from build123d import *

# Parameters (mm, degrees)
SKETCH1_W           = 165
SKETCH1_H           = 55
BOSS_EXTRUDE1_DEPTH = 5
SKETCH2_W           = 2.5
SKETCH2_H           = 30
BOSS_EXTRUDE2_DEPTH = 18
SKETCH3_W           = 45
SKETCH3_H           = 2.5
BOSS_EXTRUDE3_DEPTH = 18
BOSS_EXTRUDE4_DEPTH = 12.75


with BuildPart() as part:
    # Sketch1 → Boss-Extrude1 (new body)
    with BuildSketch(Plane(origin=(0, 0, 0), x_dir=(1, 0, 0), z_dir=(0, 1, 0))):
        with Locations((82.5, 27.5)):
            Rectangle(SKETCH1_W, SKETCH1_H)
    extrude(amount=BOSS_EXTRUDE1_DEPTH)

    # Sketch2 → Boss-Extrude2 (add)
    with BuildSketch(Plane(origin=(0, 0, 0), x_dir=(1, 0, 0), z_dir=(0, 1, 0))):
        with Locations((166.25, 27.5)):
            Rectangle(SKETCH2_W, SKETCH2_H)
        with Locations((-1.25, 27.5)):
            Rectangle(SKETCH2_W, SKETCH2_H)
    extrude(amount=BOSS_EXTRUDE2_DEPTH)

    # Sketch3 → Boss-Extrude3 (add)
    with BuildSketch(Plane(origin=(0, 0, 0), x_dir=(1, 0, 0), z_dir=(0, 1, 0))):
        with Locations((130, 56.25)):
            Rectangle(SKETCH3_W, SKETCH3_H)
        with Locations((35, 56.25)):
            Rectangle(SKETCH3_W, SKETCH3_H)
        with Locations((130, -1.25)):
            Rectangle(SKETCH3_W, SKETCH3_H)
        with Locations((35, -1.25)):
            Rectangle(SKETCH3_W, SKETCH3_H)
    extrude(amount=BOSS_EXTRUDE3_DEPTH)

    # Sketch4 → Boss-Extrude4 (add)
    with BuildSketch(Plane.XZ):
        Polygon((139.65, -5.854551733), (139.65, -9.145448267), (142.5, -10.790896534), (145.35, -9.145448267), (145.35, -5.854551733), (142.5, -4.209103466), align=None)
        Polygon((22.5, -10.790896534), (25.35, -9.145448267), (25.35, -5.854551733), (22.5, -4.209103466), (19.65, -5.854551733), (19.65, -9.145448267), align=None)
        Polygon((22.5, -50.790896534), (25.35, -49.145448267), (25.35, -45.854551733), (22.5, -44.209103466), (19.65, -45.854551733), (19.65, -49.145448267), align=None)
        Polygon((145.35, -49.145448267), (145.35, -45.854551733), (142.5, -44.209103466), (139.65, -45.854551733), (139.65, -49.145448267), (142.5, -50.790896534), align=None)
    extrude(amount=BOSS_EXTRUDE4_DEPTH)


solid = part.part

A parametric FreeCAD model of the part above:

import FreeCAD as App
import Part
import Sketcher
from FreeCAD import Vector
Q = App.Units.Quantity

doc = App.newDocument("Part")
body = doc.addObject("PartDesign::Body", "Body")

# Sketch on XZ plane
sketch1 = body.newObject("Sketcher::SketchObject", "Sketch")
sketch1.AttachmentSupport = (doc.getObject("XZ_Plane"), [""])
sketch1.MapMode = "FlatFace"
sketch1.addGeometry(Part.LineSegment(Vector(0, -55, 0), Vector(0, 0, 0)), False)
sketch1.addGeometry(Part.LineSegment(Vector(0, 0, 0), Vector(165, 0, 0)), False)
sketch1.addGeometry(Part.LineSegment(Vector(165, 0, 0), Vector(165, -55, 0)), False)
sketch1.addGeometry(Part.LineSegment(Vector(165, -55, 0), Vector(0, -55, 0)), False)
sketch1.addConstraint(Sketcher.Constraint("Coincident", 0, 2, 1, 1))
sketch1.addConstraint(Sketcher.Constraint("Coincident", 1, 2, 2, 1))
sketch1.addConstraint(Sketcher.Constraint("Coincident", 2, 2, 3, 1))
sketch1.addConstraint(Sketcher.Constraint("Coincident", 3, 2, 0, 1))
sketch1.addConstraint(Sketcher.Constraint("Vertical", 0))
sketch1.addConstraint(Sketcher.Constraint("Horizontal", 1))
sketch1.addConstraint(Sketcher.Constraint("Vertical", 2))
sketch1.addConstraint(Sketcher.Constraint("Horizontal", 3))
sketch1.addConstraint(Sketcher.Constraint("Coincident", 0, 2, -1, 1))
sketch1.addConstraint(Sketcher.Constraint("DistanceX", 1, 1, 1, 2, Q("165 mm")))
sketch1.addConstraint(Sketcher.Constraint("DistanceY", 0, 1, 0, 2, Q("55 mm")))
pad1 = body.newObject("PartDesign::Pad", "Pad")
pad1.Profile = sketch1
pad1.Length = 5
pad1.Reversed = True

# Sketch on XZ plane
sketch2 = body.newObject("Sketcher::SketchObject", "Sketch001")
sketch2.AttachmentSupport = (doc.getObject("XZ_Plane"), [""])
sketch2.MapMode = "FlatFace"
sketch2.addGeometry(Part.LineSegment(Vector(165, -42.5, 0), Vector(165, -12.5, 0)), False)
sketch2.addGeometry(Part.LineSegment(Vector(165, -12.5, 0), Vector(167.5, -12.5, 0)), False)
sketch2.addGeometry(Part.LineSegment(Vector(167.5, -12.5, 0), Vector(167.5, -42.5, 0)), False)
sketch2.addGeometry(Part.LineSegment(Vector(167.5, -42.5, 0), Vector(165, -42.5, 0)), False)
sketch2.addGeometry(Part.LineSegment(Vector(-2.5, -42.5, 0), Vector(-2.5, -12.5, 0)), False)
sketch2.addGeometry(Part.LineSegment(Vector(-2.5, -12.5, 0), Vector(0, -12.5, 0)), False)
sketch2.addGeometry(Part.LineSegment(Vector(0, -12.5, 0), Vector(0, -42.5, 0)), False)
sketch2.addGeometry(Part.LineSegment(Vector(0, -42.5, 0), Vector(-2.5, -42.5, 0)), False)
sketch2.addConstraint(Sketcher.Constraint("Coincident", 0, 2, 1, 1))
sketch2.addConstraint(Sketcher.Constraint("Coincident", 1, 2, 2, 1))
sketch2.addConstraint(Sketcher.Constraint("Coincident", 2, 2, 3, 1))
sketch2.addConstraint(Sketcher.Constraint("Coincident", 3, 2, 0, 1))
sketch2.addConstraint(Sketcher.Constraint("Coincident", 4, 2, 5, 1))
sketch2.addConstraint(Sketcher.Constraint("Coincident", 5, 2, 6, 1))
sketch2.addConstraint(Sketcher.Constraint("Coincident", 6, 2, 7, 1))
sketch2.addConstraint(Sketcher.Constraint("Coincident", 7, 2, 4, 1))
sketch2.addConstraint(Sketcher.Constraint("Vertical", 0))
sketch2.addConstraint(Sketcher.Constraint("Horizontal", 1))
sketch2.addConstraint(Sketcher.Constraint("Vertical", 2))
sketch2.addConstraint(Sketcher.Constraint("Horizontal", 3))
sketch2.addConstraint(Sketcher.Constraint("Vertical", 4))
sketch2.addConstraint(Sketcher.Constraint("Horizontal", 5))
sketch2.addConstraint(Sketcher.Constraint("Vertical", 6))
sketch2.addConstraint(Sketcher.Constraint("Horizontal", 7))
sketch2.addConstraint(Sketcher.Constraint("PointOnObject", 5, 2, -2))
sketch2.addConstraint(Sketcher.Constraint("Horizontal", 1, 2, 4, 2))
sketch2.addConstraint(Sketcher.Constraint("Horizontal", 3, 2, 6, 2))
sketch2.addConstraint(Sketcher.Constraint("Equal", 3, 5))
sketch2.addConstraint(Sketcher.Constraint("DistanceY", 0, 1, 0, 2, Q("30 mm")))
sketch2.addConstraint(Sketcher.Constraint("DistanceX", 1, 1, 1, 2, Q("2.5 mm")))
sketch2.addConstraint(Sketcher.Constraint("DistanceX", -1, 1, 0, 2, Q("165 mm")))
sketch2.addConstraint(Sketcher.Constraint("DistanceY", 0, 2, -1, 1, Q("12.5 mm")))
pad2 = body.newObject("PartDesign::Pad", "Pad001")
pad2.Profile = sketch2
pad2.Length = 18
pad2.Reversed = True

# Sketch on XZ plane
sketch3 = body.newObject("Sketcher::SketchObject", "Sketch002")
sketch3.AttachmentSupport = (doc.getObject("XZ_Plane"), [""])
sketch3.MapMode = "FlatFace"
sketch3.addGeometry(Part.LineSegment(Vector(107.5, -57.5, 0), Vector(107.5, -55, 0)), False)
sketch3.addGeometry(Part.LineSegment(Vector(107.5, -55, 0), Vector(152.5, -55, 0)), False)
sketch3.addGeometry(Part.LineSegment(Vector(152.5, -55, 0), Vector(152.5, -57.5, 0)), False)
sketch3.addGeometry(Part.LineSegment(Vector(152.5, -57.5, 0), Vector(107.5, -57.5, 0)), False)
sketch3.addGeometry(Part.LineSegment(Vector(12.5, -57.5, 0), Vector(12.5, -55, 0)), False)
sketch3.addGeometry(Part.LineSegment(Vector(12.5, -55, 0), Vector(57.5, -55, 0)), False)
sketch3.addGeometry(Part.LineSegment(Vector(57.5, -55, 0), Vector(57.5, -57.5, 0)), False)
sketch3.addGeometry(Part.LineSegment(Vector(57.5, -57.5, 0), Vector(12.5, -57.5, 0)), False)
sketch3.addGeometry(Part.LineSegment(Vector(107.5, 0, 0), Vector(107.5, 2.5, 0)), False)
sketch3.addGeometry(Part.LineSegment(Vector(107.5, 2.5, 0), Vector(152.5, 2.5, 0)), False)
sketch3.addGeometry(Part.LineSegment(Vector(152.5, 2.5, 0), Vector(152.5, 0, 0)), False)
sketch3.addGeometry(Part.LineSegment(Vector(152.5, 0, 0), Vector(107.5, 0, 0)), False)
sketch3.addGeometry(Part.LineSegment(Vector(12.5, 0, 0), Vector(12.5, 2.5, 0)), False)
sketch3.addGeometry(Part.LineSegment(Vector(12.5, 2.5, 0), Vector(57.5, 2.5, 0)), False)
sketch3.addGeometry(Part.LineSegment(Vector(57.5, 2.5, 0), Vector(57.5, 0, 0)), False)
sketch3.addGeometry(Part.LineSegment(Vector(57.5, 0, 0), Vector(12.5, 0, 0)), False)
sketch3.addConstraint(Sketcher.Constraint("Coincident", 0, 2, 1, 1))
sketch3.addConstraint(Sketcher.Constraint("Coincident", 1, 2, 2, 1))
sketch3.addConstraint(Sketcher.Constraint("Coincident", 2, 2, 3, 1))
sketch3.addConstraint(Sketcher.Constraint("Coincident", 3, 2, 0, 1))
sketch3.addConstraint(Sketcher.Constraint("Coincident", 4, 2, 5, 1))
sketch3.addConstraint(Sketcher.Constraint("Coincident", 5, 2, 6, 1))
sketch3.addConstraint(Sketcher.Constraint("Coincident", 6, 2, 7, 1))
sketch3.addConstraint(Sketcher.Constraint("Coincident", 7, 2, 4, 1))
sketch3.addConstraint(Sketcher.Constraint("Coincident", 8, 2, 9, 1))
sketch3.addConstraint(Sketcher.Constraint("Coincident", 9, 2, 10, 1))
sketch3.addConstraint(Sketcher.Constraint("Coincident", 10, 2, 11, 1))
sketch3.addConstraint(Sketcher.Constraint("Coincident", 11, 2, 8, 1))
sketch3.addConstraint(Sketcher.Constraint("Coincident", 12, 2, 13, 1))
sketch3.addConstraint(Sketcher.Constraint("Coincident", 13, 2, 14, 1))
sketch3.addConstraint(Sketcher.Constraint("Coincident", 14, 2, 15, 1))
sketch3.addConstraint(Sketcher.Constraint("Coincident", 15, 2, 12, 1))
sketch3.addConstraint(Sketcher.Constraint("Vertical", 0))
sketch3.addConstraint(Sketcher.Constraint("Horizontal", 1))
sketch3.addConstraint(Sketcher.Constraint("Vertical", 2))
sketch3.addConstraint(Sketcher.Constraint("Horizontal", 3))
sketch3.addConstraint(Sketcher.Constraint("Vertical", 4))
sketch3.addConstraint(Sketcher.Constraint("Horizontal", 5))
sketch3.addConstraint(Sketcher.Constraint("Vertical", 6))
sketch3.addConstraint(Sketcher.Constraint("Horizontal", 7))
sketch3.addConstraint(Sketcher.Constraint("Vertical", 8))
sketch3.addConstraint(Sketcher.Constraint("Horizontal", 9))
sketch3.addConstraint(Sketcher.Constraint("Vertical", 10))
sketch3.addConstraint(Sketcher.Constraint("Horizontal", 11))
sketch3.addConstraint(Sketcher.Constraint("Vertical", 12))
sketch3.addConstraint(Sketcher.Constraint("Horizontal", 13))
sketch3.addConstraint(Sketcher.Constraint("Vertical", 14))
sketch3.addConstraint(Sketcher.Constraint("Horizontal", 15))
sketch3.addConstraint(Sketcher.Constraint("PointOnObject", 10, 2, -1))
sketch3.addConstraint(Sketcher.Constraint("PointOnObject", 14, 2, -1))
sketch3.addConstraint(Sketcher.Constraint("Horizontal", 1, 2, 4, 2))
sketch3.addConstraint(Sketcher.Constraint("Horizontal", 3, 2, 6, 2))
sketch3.addConstraint(Sketcher.Constraint("Horizontal", 9, 2, 12, 2))
sketch3.addConstraint(Sketcher.Constraint("Vertical", 3, 2, 8, 2))
sketch3.addConstraint(Sketcher.Constraint("Vertical", 2, 2, 9, 2))
sketch3.addConstraint(Sketcher.Constraint("Vertical", 7, 2, 12, 2))
sketch3.addConstraint(Sketcher.Constraint("Vertical", 6, 2, 13, 2))
sketch3.addConstraint(Sketcher.Constraint("Equal", 3, 5))
sketch3.addConstraint(Sketcher.Constraint("Equal", 6, 8))
sketch3.addConstraint(Sketcher.Constraint("DistanceX", 1, 1, 1, 2, Q("45 mm")))
sketch3.addConstraint(Sketcher.Constraint("DistanceY", 0, 1, 0, 2, Q("2.5 mm")))
sketch3.addConstraint(Sketcher.Constraint("DistanceY", 0, 2, -1, 1, Q("55 mm")))
sketch3.addConstraint(Sketcher.Constraint("DistanceX", 4, 2, 0, 2, Q("95 mm")))
sketch3.addConstraint(Sketcher.Constraint("DistanceX", -1, 1, 0, 2, Q("107.5 mm")))
pad3 = body.newObject("PartDesign::Pad", "Pad002")
pad3.Profile = sketch3
pad3.Length = 18
pad3.Reversed = True

# Sketch on XZ plane
sketch4 = body.newObject("Sketcher::SketchObject", "Sketch003")
sketch4.AttachmentSupport = (doc.getObject("XZ_Plane"), [""])
sketch4.MapMode = "FlatFace"
sketch4.addGeometry(Part.LineSegment(Vector(139.65, -5.854552, 0), Vector(139.65, -9.145448, 0)), False)
sketch4.addGeometry(Part.LineSegment(Vector(139.65, -9.145448, 0), Vector(142.5, -10.790897, 0)), False)
sketch4.addGeometry(Part.LineSegment(Vector(142.5, -10.790897, 0), Vector(145.35, -9.145448, 0)), False)
sketch4.addGeometry(Part.LineSegment(Vector(145.35, -9.145448, 0), Vector(145.35, -5.854552, 0)), False)
sketch4.addGeometry(Part.LineSegment(Vector(145.35, -5.854552, 0), Vector(142.5, -4.209103, 0)), False)
sketch4.addGeometry(Part.LineSegment(Vector(142.5, -4.209103, 0), Vector(139.65, -5.854552, 0)), False)
sketch4.addGeometry(Part.LineSegment(Vector(22.5, -10.790897, 0), Vector(25.35, -9.145448, 0)), False)
sketch4.addGeometry(Part.LineSegment(Vector(25.35, -9.145448, 0), Vector(25.35, -5.854552, 0)), False)
sketch4.addGeometry(Part.LineSegment(Vector(25.35, -5.854552, 0), Vector(22.5, -4.209103, 0)), False)
sketch4.addGeometry(Part.LineSegment(Vector(22.5, -4.209103, 0), Vector(19.65, -5.854552, 0)), False)
sketch4.addGeometry(Part.LineSegment(Vector(19.65, -5.854552, 0), Vector(19.65, -9.145448, 0)), False)
sketch4.addGeometry(Part.LineSegment(Vector(19.65, -9.145448, 0), Vector(22.5, -10.790897, 0)), False)
sketch4.addGeometry(Part.LineSegment(Vector(22.5, -50.790897, 0), Vector(25.35, -49.145448, 0)), False)
sketch4.addGeometry(Part.LineSegment(Vector(25.35, -49.145448, 0), Vector(25.35, -45.854552, 0)), False)
sketch4.addGeometry(Part.LineSegment(Vector(25.35, -45.854552, 0), Vector(22.5, -44.209103, 0)), False)
sketch4.addGeometry(Part.LineSegment(Vector(22.5, -44.209103, 0), Vector(19.65, -45.854552, 0)), False)
sketch4.addGeometry(Part.LineSegment(Vector(19.65, -45.854552, 0), Vector(19.65, -49.145448, 0)), False)
sketch4.addGeometry(Part.LineSegment(Vector(19.65, -49.145448, 0), Vector(22.5, -50.790897, 0)), False)
sketch4.addGeometry(Part.LineSegment(Vector(145.35, -49.145448, 0), Vector(145.35, -45.854552, 0)), False)
sketch4.addGeometry(Part.LineSegment(Vector(145.35, -45.854552, 0), Vector(142.5, -44.209103, 0)), False)
sketch4.addGeometry(Part.LineSegment(Vector(142.5, -44.209103, 0), Vector(139.65, -45.854552, 0)), False)
sketch4.addGeometry(Part.LineSegment(Vector(139.65, -45.854552, 0), Vector(139.65, -49.145448, 0)), False)
sketch4.addGeometry(Part.LineSegment(Vector(139.65, -49.145448, 0), Vector(142.5, -50.790897, 0)), False)
sketch4.addGeometry(Part.LineSegment(Vector(142.5, -50.790897, 0), Vector(145.35, -49.145448, 0)), False)
sketch4.addConstraint(Sketcher.Constraint("Coincident", 0, 2, 1, 1))
sketch4.addConstraint(Sketcher.Constraint("Coincident", 1, 2, 2, 1))
sketch4.addConstraint(Sketcher.Constraint("Coincident", 2, 2, 3, 1))
sketch4.addConstraint(Sketcher.Constraint("Coincident", 3, 2, 4, 1))
sketch4.addConstraint(Sketcher.Constraint("Coincident", 4, 2, 5, 1))
sketch4.addConstraint(Sketcher.Constraint("Coincident", 5, 2, 0, 1))
sketch4.addConstraint(Sketcher.Constraint("Coincident", 6, 2, 7, 1))
sketch4.addConstraint(Sketcher.Constraint("Coincident", 7, 2, 8, 1))
sketch4.addConstraint(Sketcher.Constraint("Coincident", 8, 2, 9, 1))
sketch4.addConstraint(Sketcher.Constraint("Coincident", 9, 2, 10, 1))
sketch4.addConstraint(Sketcher.Constraint("Coincident", 10, 2, 11, 1))
sketch4.addConstraint(Sketcher.Constraint("Coincident", 11, 2, 6, 1))
sketch4.addConstraint(Sketcher.Constraint("Coincident", 12, 2, 13, 1))
sketch4.addConstraint(Sketcher.Constraint("Coincident", 13, 2, 14, 1))
sketch4.addConstraint(Sketcher.Constraint("Coincident", 14, 2, 15, 1))
sketch4.addConstraint(Sketcher.Constraint("Coincident", 15, 2, 16, 1))
sketch4.addConstraint(Sketcher.Constraint("Coincident", 16, 2, 17, 1))
sketch4.addConstraint(Sketcher.Constraint("Coincident", 17, 2, 12, 1))
sketch4.addConstraint(Sketcher.Constraint("Coincident", 18, 2, 19, 1))
sketch4.addConstraint(Sketcher.Constraint("Coincident", 19, 2, 20, 1))
sketch4.addConstraint(Sketcher.Constraint("Coincident", 20, 2, 21, 1))
sketch4.addConstraint(Sketcher.Constraint("Coincident", 21, 2, 22, 1))
sketch4.addConstraint(Sketcher.Constraint("Coincident", 22, 2, 23, 1))
sketch4.addConstraint(Sketcher.Constraint("Coincident", 23, 2, 18, 1))
sketch4.addConstraint(Sketcher.Constraint("Vertical", 0))
sketch4.addConstraint(Sketcher.Constraint("Vertical", 3))
sketch4.addConstraint(Sketcher.Constraint("Vertical", 7))
sketch4.addConstraint(Sketcher.Constraint("Vertical", 10))
sketch4.addConstraint(Sketcher.Constraint("Vertical", 13))
sketch4.addConstraint(Sketcher.Constraint("Vertical", 16))
sketch4.addConstraint(Sketcher.Constraint("Vertical", 18))
sketch4.addConstraint(Sketcher.Constraint("Vertical", 21))
sketch4.addConstraint(Sketcher.Constraint("Parallel", 1, 4))
sketch4.addConstraint(Sketcher.Constraint("Parallel", 2, 5))
sketch4.addConstraint(Sketcher.Constraint("Parallel", 5, 6))
sketch4.addConstraint(Sketcher.Constraint("Parallel", 4, 8))
sketch4.addConstraint(Sketcher.Constraint("Parallel", 6, 9))
sketch4.addConstraint(Sketcher.Constraint("Parallel", 8, 11))
sketch4.addConstraint(Sketcher.Constraint("Parallel", 9, 12))
sketch4.addConstraint(Sketcher.Constraint("Parallel", 11, 14))
sketch4.addConstraint(Sketcher.Constraint("Parallel", 12, 15))
sketch4.addConstraint(Sketcher.Constraint("Parallel", 14, 17))
sketch4.addConstraint(Sketcher.Constraint("Parallel", 17, 19))
sketch4.addConstraint(Sketcher.Constraint("Parallel", 15, 20))
sketch4.addConstraint(Sketcher.Constraint("Parallel", 19, 22))
sketch4.addConstraint(Sketcher.Constraint("Parallel", 20, 23))
sketch4.addConstraint(Sketcher.Constraint("Horizontal", 0, 2, 2, 2))
sketch4.addConstraint(Sketcher.Constraint("Horizontal", 3, 2, 5, 2))
sketch4.addConstraint(Sketcher.Constraint("Horizontal", 2, 2, 6, 2))
sketch4.addConstraint(Sketcher.Constraint("Horizontal", 5, 2, 7, 2))
sketch4.addConstraint(Sketcher.Constraint("Horizontal", 4, 2, 8, 2))
sketch4.addConstraint(Sketcher.Constraint("Horizontal", 7, 2, 9, 2))
sketch4.addConstraint(Sketcher.Constraint("Horizontal", 6, 2, 10, 2))
sketch4.addConstraint(Sketcher.Constraint("Horizontal", 13, 2, 15, 2))
sketch4.addConstraint(Sketcher.Constraint("Horizontal", 12, 2, 16, 2))
sketch4.addConstraint(Sketcher.Constraint("Horizontal", 15, 2, 18, 2))
sketch4.addConstraint(Sketcher.Constraint("Horizontal", 14, 2, 19, 2))
sketch4.addConstraint(Sketcher.Constraint("Horizontal", 18, 2, 20, 2))
sketch4.addConstraint(Sketcher.Constraint("Horizontal", 16, 2, 21, 2))
sketch4.addConstraint(Sketcher.Constraint("Horizontal", 17, 2, 22, 2))
sketch4.addConstraint(Sketcher.Constraint("Vertical", 1, 2, 4, 2))
sketch4.addConstraint(Sketcher.Constraint("Vertical", 7, 2, 12, 2))
sketch4.addConstraint(Sketcher.Constraint("Vertical", 11, 2, 14, 2))
sketch4.addConstraint(Sketcher.Constraint("Vertical", 3, 2, 18, 2))
sketch4.addConstraint(Sketcher.Constraint("Equal", 10, 13))
sketch4.addConstraint(Sketcher.Constraint("Angle", 1, Q("-30 deg")))
sketch4.addConstraint(Sketcher.Constraint("DistanceX", 6, 2, 2, 2, Q("120 mm")))
sketch4.addConstraint(Sketcher.Constraint("DistanceY", 12, 2, 6, 2, Q("40 mm")))
sketch4.addConstraint(Sketcher.Constraint("DistanceX", -1, 1, 1, 2, Q("142.5 mm")))
sketch4.addConstraint(Sketcher.Constraint("DistanceX", 0, 2, 2, 2, Q("5.7 mm")))
sketch4.addConstraint(Sketcher.Constraint("DistanceY", 0, 2, 0, 1, Q("3.290897 mm")))
sketch4.addConstraint(Sketcher.Constraint("DistanceY", 0, 2, -1, 1, Q("9.145448 mm")))
pad4 = body.newObject("PartDesign::Pad", "Pad003")
pad4.Profile = sketch4
pad4.Length = 12.75

doc.recompute()
